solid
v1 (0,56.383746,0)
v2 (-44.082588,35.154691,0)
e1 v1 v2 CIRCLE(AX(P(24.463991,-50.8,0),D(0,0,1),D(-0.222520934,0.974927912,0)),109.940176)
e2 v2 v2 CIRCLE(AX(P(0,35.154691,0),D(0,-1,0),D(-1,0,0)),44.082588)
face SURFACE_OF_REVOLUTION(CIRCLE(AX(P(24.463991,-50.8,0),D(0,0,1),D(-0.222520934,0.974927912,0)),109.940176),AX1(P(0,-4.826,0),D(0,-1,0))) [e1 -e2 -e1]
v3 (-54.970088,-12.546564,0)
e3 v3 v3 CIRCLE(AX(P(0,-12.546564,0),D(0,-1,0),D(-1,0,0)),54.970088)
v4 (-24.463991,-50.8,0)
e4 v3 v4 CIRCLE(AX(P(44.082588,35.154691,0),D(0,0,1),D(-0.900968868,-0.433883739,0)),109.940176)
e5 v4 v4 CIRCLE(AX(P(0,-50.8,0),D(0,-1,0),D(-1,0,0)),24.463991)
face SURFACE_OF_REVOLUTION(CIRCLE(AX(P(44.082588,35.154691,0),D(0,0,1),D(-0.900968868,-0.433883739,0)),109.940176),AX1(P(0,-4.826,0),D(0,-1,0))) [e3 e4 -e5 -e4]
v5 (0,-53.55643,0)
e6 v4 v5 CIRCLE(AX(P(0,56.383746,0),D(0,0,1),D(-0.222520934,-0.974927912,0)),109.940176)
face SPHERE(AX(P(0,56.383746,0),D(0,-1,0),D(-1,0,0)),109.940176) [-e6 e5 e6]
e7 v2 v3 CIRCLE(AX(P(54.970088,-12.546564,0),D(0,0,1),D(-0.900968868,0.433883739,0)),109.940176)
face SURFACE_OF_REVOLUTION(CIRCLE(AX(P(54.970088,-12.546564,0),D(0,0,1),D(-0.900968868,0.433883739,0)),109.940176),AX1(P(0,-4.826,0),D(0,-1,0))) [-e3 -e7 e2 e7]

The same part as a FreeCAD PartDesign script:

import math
import FreeCAD as App
import Part
import Sketcher
Q = App.Units.Quantity

doc = App.newDocument("Part")
body = doc.addObject("PartDesign::Body", "Body")

# Sketch on XY plane
sketch1 = doc.addObject("Sketcher::SketchObject", "Sketch")
body.addObject(sketch1)
sketch1.AttachmentSupport = (doc.XY_Plane, [""])
sketch1.MapMode = "FlatFace"
sketch1.addGeometry(Part.ArcOfCircle(Part.Circle(App.Vector(24, -51, 0), App.Vector(0, 0, 1), 110), math.radians(103), math.radians(129)), False)
sketch1.addGeometry(Part.ArcOfCircle(Part.Circle(App.Vector(55, -13, 0), App.Vector(0, 0, 1), 110), math.radians(154), math.radians(180)), False)
sketch1.addGeometry(Part.ArcOfCircle(Part.Circle(App.Vector(44, 35, 0), App.Vector(0, 0, 1), 110), math.radians(-154), math.radians(-129)), False)
sketch1.addGeometry(Part.ArcOfCircle(Part.Circle(App.Vector(0, 56, 0), App.Vector(0, 0, 1), 110), math.radians(-102.86), math.radians(-90)), False)
sketch1.addGeometry(Part.LineSegment(App.Vector(0, -54, 0), App.Vector(0, 56, 0)), False)
sketch1.addConstraint(Sketcher.Constraint("Coincident", 0, 2, 1, 1))
sketch1.addConstraint(Sketcher.Constraint("Coincident", 1, 2, 2, 1))
sketch1.addConstraint(Sketcher.Constraint("Coincident", 2, 2, 3, 1))
sketch1.addConstraint(Sketcher.Constraint("Coincident", 3, 2, 4, 1))
sketch1.addConstraint(Sketcher.Constraint("Coincident", 4, 2, 0, 1))
sketch1.addConstraint(Sketcher.Constraint("Vertical", 4))
sketch1.addConstraint(Sketcher.Constraint("Coincident", 4, 2, 3, 3))
sketch1.addConstraint(Sketcher.Constraint("Equal", 0, 1))
sketch1.addConstraint(Sketcher.Constraint("Equal", 1, 2))
sketch1.addConstraint(Sketcher.Constraint("Equal", 2, 3))
sketch1.addConstraint(Sketcher.Constraint("PointOnObject", 3, 3, -2))
sketch1.addConstraint(Sketcher.Constraint("Horizontal", 2, 3, 0, 2))
sketch1.addConstraint(Sketcher.Constraint("Horizontal", 0, 3, 2, 2))
sketch1.addConstraint(Sketcher.Constraint("DistanceY", 0, 3, -1, 1, Q("50.8 mm")))
sketch1.addConstraint(Sketcher.Constraint("Radius", 0, Q("109.940176 mm")))
sketch1.addConstraint(Sketcher.Constraint("DistanceX", 2, 3, 1, 3, Q("10.8875 mm")))
sketch1.addConstraint(Sketcher.Constraint("DistanceX", 1, 2, 0, 2, Q("10.8875 mm")))
sketch1.addConstraint(Sketcher.Constraint("DistanceX", -1, 1, 0, 3, Q("24.463991 mm")))
revolution = doc.addObject("PartDesign::Revolution", "Revolution")
body.addObject(revolution)
revolution.Profile = sketch1
revolution.ReferenceAxis = (sketch1, ["V_Axis"])
revolution.Angle = 360

doc.recompute()
